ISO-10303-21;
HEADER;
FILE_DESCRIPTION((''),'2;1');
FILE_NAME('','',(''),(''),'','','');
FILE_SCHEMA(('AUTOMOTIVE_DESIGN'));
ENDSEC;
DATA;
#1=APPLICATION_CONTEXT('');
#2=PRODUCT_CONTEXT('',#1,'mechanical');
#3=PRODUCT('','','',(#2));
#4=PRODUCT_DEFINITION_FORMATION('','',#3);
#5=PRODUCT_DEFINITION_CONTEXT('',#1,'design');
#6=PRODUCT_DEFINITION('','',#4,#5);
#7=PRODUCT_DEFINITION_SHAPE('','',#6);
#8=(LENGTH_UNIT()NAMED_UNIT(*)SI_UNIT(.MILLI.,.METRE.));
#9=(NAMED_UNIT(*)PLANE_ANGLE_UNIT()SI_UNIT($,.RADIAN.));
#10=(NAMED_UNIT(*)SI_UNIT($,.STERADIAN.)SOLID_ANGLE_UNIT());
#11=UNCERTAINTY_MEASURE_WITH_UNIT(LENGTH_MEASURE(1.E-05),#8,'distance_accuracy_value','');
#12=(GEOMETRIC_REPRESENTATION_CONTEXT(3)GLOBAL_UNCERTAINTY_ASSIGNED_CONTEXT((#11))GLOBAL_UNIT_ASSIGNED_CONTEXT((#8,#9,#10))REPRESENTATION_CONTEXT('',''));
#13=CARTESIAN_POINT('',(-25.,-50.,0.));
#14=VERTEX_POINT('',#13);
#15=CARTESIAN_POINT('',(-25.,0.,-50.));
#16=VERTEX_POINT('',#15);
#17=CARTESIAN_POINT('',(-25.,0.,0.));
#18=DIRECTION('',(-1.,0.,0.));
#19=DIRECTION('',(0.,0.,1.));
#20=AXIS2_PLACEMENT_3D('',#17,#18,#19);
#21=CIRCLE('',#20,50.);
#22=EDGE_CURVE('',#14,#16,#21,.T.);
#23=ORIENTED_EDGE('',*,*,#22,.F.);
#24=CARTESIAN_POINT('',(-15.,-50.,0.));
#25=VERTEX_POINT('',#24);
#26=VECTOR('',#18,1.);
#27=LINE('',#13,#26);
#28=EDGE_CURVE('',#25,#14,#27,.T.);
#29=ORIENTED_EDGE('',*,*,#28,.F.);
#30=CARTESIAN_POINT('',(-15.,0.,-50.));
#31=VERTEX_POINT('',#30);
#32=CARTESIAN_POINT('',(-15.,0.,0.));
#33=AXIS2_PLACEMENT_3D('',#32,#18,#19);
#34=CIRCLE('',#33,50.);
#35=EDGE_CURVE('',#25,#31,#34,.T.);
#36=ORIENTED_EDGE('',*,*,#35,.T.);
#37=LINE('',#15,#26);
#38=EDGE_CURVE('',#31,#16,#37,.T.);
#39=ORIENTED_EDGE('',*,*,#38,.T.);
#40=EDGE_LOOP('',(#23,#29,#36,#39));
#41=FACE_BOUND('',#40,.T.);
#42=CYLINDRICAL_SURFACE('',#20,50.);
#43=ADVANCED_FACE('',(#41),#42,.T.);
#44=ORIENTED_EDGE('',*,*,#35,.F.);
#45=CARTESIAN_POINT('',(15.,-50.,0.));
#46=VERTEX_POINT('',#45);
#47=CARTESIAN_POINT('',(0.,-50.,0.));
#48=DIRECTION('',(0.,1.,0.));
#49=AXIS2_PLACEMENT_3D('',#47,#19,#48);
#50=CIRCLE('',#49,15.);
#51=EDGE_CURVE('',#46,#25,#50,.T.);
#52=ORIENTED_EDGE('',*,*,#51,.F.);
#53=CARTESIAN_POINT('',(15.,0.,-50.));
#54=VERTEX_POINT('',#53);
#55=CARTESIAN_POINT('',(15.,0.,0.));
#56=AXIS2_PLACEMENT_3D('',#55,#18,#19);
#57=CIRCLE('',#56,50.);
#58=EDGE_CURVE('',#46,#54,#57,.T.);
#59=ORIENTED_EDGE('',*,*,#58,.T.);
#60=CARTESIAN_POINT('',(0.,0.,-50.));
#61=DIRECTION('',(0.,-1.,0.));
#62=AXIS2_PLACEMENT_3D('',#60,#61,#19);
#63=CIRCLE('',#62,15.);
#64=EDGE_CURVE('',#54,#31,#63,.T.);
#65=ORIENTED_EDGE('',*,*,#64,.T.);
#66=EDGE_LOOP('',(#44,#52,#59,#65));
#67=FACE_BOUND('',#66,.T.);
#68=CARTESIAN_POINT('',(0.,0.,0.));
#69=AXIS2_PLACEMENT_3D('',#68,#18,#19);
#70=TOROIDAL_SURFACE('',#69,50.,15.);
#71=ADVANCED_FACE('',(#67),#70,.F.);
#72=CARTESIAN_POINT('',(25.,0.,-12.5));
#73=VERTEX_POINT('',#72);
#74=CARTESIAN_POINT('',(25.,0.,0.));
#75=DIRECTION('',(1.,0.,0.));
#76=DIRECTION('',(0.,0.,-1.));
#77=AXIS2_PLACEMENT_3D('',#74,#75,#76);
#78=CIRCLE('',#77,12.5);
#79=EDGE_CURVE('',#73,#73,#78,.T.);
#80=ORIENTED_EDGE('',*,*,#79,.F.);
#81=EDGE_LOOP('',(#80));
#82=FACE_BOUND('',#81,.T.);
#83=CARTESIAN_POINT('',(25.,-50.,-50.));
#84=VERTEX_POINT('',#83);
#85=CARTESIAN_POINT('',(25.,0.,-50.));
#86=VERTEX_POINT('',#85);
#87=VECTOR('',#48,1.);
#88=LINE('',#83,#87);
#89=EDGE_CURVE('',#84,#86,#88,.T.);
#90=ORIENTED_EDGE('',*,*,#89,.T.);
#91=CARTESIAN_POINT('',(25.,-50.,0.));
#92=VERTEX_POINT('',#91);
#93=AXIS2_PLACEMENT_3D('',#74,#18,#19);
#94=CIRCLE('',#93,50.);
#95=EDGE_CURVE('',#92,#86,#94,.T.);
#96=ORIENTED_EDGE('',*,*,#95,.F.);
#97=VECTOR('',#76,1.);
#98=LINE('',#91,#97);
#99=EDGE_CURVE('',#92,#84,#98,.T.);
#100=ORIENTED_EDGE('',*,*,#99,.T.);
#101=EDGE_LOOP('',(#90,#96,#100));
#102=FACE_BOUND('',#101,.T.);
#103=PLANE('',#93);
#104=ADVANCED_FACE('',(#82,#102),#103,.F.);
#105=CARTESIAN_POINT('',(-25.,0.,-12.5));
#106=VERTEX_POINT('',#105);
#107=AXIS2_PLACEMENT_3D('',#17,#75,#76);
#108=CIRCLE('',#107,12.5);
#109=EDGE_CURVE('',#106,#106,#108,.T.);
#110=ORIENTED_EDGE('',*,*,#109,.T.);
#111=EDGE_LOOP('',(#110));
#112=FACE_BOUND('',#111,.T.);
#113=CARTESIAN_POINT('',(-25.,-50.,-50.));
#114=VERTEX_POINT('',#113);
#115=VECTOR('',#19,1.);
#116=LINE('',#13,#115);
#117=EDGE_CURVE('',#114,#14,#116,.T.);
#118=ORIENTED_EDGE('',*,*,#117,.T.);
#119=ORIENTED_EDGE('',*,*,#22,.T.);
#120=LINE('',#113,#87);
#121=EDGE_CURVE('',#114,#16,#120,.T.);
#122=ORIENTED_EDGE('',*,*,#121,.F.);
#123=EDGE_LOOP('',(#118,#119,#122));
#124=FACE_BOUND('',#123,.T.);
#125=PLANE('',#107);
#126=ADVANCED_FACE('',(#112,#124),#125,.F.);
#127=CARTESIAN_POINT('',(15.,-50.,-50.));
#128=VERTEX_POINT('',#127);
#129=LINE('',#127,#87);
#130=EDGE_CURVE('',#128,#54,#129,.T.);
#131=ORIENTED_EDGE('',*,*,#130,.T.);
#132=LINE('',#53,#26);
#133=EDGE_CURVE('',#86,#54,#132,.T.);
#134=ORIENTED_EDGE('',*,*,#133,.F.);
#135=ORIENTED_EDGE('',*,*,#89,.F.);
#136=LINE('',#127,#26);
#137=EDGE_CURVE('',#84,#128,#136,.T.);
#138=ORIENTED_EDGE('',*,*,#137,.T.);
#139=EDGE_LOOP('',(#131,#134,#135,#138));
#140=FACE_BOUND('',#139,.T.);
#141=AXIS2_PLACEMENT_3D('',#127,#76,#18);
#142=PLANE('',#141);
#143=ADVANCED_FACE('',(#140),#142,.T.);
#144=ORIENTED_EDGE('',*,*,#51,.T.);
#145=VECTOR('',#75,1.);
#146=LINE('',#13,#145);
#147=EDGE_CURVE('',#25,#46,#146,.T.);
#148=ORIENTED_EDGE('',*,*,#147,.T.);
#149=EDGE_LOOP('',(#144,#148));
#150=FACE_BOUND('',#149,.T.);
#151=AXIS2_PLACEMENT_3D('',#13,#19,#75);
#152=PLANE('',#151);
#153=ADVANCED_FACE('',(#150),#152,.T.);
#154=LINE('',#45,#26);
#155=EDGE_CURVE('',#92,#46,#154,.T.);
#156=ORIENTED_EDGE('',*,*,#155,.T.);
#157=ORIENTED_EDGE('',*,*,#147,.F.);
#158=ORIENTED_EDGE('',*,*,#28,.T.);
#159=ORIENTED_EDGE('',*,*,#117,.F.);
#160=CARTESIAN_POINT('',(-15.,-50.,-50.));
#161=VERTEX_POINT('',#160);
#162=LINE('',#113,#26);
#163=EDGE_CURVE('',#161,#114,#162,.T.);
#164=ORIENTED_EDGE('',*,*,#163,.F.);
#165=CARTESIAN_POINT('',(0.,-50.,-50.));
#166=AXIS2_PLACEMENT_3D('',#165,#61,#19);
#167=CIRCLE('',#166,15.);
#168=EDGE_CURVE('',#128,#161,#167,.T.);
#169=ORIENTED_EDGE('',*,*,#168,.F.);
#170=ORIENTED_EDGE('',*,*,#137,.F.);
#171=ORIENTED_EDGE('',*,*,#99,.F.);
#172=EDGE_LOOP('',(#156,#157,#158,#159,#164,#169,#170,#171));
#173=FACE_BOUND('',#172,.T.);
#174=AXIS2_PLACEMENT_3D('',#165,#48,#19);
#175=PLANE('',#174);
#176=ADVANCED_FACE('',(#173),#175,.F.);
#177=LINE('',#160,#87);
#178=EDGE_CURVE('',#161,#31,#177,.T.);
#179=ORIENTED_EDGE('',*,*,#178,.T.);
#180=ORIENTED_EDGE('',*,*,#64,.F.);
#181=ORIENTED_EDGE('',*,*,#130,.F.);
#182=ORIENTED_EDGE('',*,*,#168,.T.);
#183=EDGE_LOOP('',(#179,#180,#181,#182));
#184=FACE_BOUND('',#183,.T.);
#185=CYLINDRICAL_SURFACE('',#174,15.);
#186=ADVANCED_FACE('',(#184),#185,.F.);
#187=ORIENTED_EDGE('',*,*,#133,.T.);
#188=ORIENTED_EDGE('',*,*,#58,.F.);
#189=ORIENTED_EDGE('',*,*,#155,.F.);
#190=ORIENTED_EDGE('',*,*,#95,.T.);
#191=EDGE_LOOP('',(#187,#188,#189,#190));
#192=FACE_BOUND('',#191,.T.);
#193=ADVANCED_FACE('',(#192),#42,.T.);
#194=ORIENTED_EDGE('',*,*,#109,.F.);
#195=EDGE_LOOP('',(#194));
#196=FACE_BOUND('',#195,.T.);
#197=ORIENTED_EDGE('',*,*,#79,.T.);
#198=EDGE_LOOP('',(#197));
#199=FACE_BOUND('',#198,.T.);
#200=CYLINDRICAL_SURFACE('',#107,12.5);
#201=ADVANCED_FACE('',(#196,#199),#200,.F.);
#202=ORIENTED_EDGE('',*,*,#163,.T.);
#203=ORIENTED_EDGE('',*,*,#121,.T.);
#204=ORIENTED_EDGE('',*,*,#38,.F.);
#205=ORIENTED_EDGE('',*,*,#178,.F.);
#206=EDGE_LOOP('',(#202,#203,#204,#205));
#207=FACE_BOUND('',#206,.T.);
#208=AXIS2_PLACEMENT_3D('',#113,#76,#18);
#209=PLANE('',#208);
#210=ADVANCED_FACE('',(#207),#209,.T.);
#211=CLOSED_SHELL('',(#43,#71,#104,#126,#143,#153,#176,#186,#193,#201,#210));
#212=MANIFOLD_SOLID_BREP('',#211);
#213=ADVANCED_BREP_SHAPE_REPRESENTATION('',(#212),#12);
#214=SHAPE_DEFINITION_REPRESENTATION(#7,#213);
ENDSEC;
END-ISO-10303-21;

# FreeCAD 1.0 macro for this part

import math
import FreeCAD as App
import Part
import Sketcher
from FreeCAD import Vector
Q = App.Units.Quantity

doc = App.newDocument("Part")
params = doc.addObject("Spreadsheet::Sheet", "Params")
for row, (alias, value) in enumerate([
    ("sketch1_radius", "15 mm"),
    ("sketch1_width", "10 mm"),
    ("revolution_angle", "270 deg"),
    ("sketch2_radius", "15 mm"),
    ("sketch2_width", "10 mm"),
    ("pad1_length", "50 mm"),
    ("sketch3_diameter", "25 mm"),
], start=1):
    params.set(f"A{row}", alias)
    params.set(f"B{row}", "=" + value)
    params.setAlias(f"B{row}", alias)

body = doc.addObject("PartDesign::Body", "Body")

sketch1 = body.newObject("Sketcher::SketchObject", "Sketch")
sketch1.AttachmentSupport = (doc.getObject("XZ_Plane"), [""])
sketch1.MapMode = "FlatFace"
sketch1.addGeometry([
    Part.LineSegment(Vector(25, -50, 0), Vector(15, -50, 0)),
    Part.ArcOfCircle(Part.Circle(Vector(0, -50, 0), Vector(0, 0, 1), 15), math.radians(0), math.radians(180)),
    Part.LineSegment(Vector(-15, -50, 0), Vector(-25, -50, 0)),
    Part.LineSegment(Vector(-25, -50, 0), Vector(-25, 0, 0)),
    Part.LineSegment(Vector(-25, 0, 0), Vector(25, 0, 0)),
    Part.LineSegment(Vector(25, 0, 0), Vector(25, -50, 0)),
], False)
sketch1.addConstraint([
    Sketcher.Constraint("Coincident", 0, 2, 1, 1),
    Sketcher.Constraint("Coincident", 1, 2, 2, 1),
    Sketcher.Constraint("Coincident", 2, 2, 3, 1),
    Sketcher.Constraint("Coincident", 3, 2, 4, 1),
    Sketcher.Constraint("Coincident", 4, 2, 5, 1),
    Sketcher.Constraint("Coincident", 5, 2, 0, 1),
    Sketcher.Constraint("Horizontal", 0),
    Sketcher.Constraint("Horizontal", 2),
    Sketcher.Constraint("Vertical", 3),
    Sketcher.Constraint("Horizontal", 4),
    Sketcher.Constraint("Vertical", 5),
    Sketcher.Constraint("Symmetric", 3, 2, 4, 2, -1, 1),
    Sketcher.Constraint("Symmetric", 0, 2, 1, 2, -2),
    Sketcher.Constraint("Horizontal", 1, 3, 0, 2),
    Sketcher.Constraint("Equal", 4, 3),
    Sketcher.Constraint("Radius", 1, Q("15 mm")),
    Sketcher.Constraint("DistanceX", 0, 2, 0, 1, Q("10 mm")),
])
sketch1.setExpression("Constraints[15]", "Params.sketch1_radius")
sketch1.setExpression("Constraints[16]", "Params.sketch1_width")
revolution = body.newObject("PartDesign::Revolution", "Revolution")
revolution.Profile = sketch1
revolution.ReferenceAxis = (sketch1, ["H_Axis"])
revolution.setExpression("Angle", "Params.revolution_angle")

sketch2 = body.newObject("Sketcher::SketchObject", "Sketch001")
sketch2.AttachmentSupport = (doc.getObject("XZ_Plane"), [""])
sketch2.MapMode = "FlatFace"
sketch2.addGeometry([
    Part.LineSegment(Vector(25, -50, 0), Vector(15, -50, 0)),
    Part.ArcOfCircle(Part.Circle(Vector(0, -50, 0), Vector(0, 0, 1), 15), math.radians(0), math.radians(180)),
    Part.LineSegment(Vector(-15, -50, 0), Vector(-25, -50, 0)),
    Part.LineSegment(Vector(-25, -50, 0), Vector(-25, 0, 0)),
    Part.LineSegment(Vector(-25, 0, 0), Vector(25, 0, 0)),
    Part.LineSegment(Vector(25, 0, 0), Vector(25, -50, 0)),
], False)
sketch2.addConstraint([
    Sketcher.Constraint("Coincident", 0, 2, 1, 1),
    Sketcher.Constraint("Coincident", 1, 2, 2, 1),
    Sketcher.Constraint("Coincident", 2, 2, 3, 1),
    Sketcher.Constraint("Coincident", 3, 2, 4, 1),
    Sketcher.Constraint("Coincident", 4, 2, 5, 1),
    Sketcher.Constraint("Coincident", 5, 2, 0, 1),
    Sketcher.Constraint("Horizontal", 0),
    Sketcher.Constraint("Horizontal", 2),
    Sketcher.Constraint("Vertical", 3),
    Sketcher.Constraint("Horizontal", 4),
    Sketcher.Constraint("Vertical", 5),
    Sketcher.Constraint("Symmetric", 3, 2, 4, 2, -1, 1),
    Sketcher.Constraint("Symmetric", 0, 2, 1, 2, -2),
    Sketcher.Constraint("Horizontal", 1, 3, 0, 2),
    Sketcher.Constraint("Equal", 4, 3),
    Sketcher.Constraint("Radius", 1, Q("15 mm")),
    Sketcher.Constraint("DistanceX", 0, 2, 0, 1, Q("10 mm")),
])
sketch2.setExpression("Constraints[15]", "Params.sketch2_radius")
sketch2.setExpression("Constraints[16]", "Params.sketch2_width")
pad1 = body.newObject("PartDesign::Pad", "Pad")
pad1.Profile = sketch2
pad1.setExpression("Length", "Params.pad1_length")

sketch3 = body.newObject("Sketcher::SketchObject", "Sketch002")
sketch3.AttachmentSupport = (doc.getObject("YZ_Plane"), [""])
sketch3.MapMode = "FlatFace"
sketch3.AttachmentOffset = App.Placement(Vector(0, 0, 25), App.Rotation())
sketch3.addGeometry(Part.Circle(Vector(0, 0, 0), Vector(0, 0, 1), 12), False)
sketch3.addConstraint([
    Sketcher.Constraint("Coincident", 0, 3, -1, 1),
    Sketcher.Constraint("Diameter", 0, Q("25 mm")),
])
sketch3.setExpression("Constraints[1]", "Params.sketch3_diameter")
pocket1 = body.newObject("PartDesign::Pocket", "Pocket")
pocket1.Profile = sketch3
pocket1.Type = "ThroughAll"

doc.recompute()
